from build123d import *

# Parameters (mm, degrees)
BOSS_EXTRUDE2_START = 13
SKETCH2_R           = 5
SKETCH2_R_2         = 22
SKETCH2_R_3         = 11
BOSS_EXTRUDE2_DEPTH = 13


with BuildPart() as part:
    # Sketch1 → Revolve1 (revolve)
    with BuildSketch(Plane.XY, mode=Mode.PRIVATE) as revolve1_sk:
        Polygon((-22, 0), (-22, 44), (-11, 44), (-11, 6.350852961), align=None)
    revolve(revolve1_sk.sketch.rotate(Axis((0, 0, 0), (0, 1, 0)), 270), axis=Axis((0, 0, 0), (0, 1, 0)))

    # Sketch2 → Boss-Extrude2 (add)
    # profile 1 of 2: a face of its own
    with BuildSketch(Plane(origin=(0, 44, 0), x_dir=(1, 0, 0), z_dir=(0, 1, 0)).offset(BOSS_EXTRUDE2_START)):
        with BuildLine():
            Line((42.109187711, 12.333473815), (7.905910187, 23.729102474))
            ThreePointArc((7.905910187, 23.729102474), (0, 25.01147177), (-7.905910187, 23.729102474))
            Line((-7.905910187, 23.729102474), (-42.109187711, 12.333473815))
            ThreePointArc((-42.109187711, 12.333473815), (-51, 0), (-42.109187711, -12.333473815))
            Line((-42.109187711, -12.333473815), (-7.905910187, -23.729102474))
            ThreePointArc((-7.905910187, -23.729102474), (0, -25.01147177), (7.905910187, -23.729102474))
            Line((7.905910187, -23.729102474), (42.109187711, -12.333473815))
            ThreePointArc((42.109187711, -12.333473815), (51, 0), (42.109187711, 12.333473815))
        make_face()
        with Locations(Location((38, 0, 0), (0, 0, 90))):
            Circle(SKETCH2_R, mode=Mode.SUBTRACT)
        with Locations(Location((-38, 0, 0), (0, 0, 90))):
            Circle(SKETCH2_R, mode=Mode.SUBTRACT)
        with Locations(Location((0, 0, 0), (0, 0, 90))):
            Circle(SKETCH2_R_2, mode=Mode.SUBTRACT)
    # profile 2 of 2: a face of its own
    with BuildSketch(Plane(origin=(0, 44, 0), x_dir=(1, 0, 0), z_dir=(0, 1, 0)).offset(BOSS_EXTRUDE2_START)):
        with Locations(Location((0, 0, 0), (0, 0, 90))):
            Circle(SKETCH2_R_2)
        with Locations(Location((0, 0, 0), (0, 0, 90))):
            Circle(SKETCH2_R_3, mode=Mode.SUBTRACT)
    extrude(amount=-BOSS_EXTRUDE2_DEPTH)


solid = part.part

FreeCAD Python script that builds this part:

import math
import FreeCAD as App
import Part
import Sketcher
from FreeCAD import Vector
Q = App.Units.Quantity

doc = App.newDocument("Part")
params = doc.addObject("Spreadsheet::Sheet", "Params")
for row, (alias, value) in enumerate([
    ("sketch1_width", "11 mm"),
    ("sketch1_height", "44 mm"),
    ("revolution_angle", "360 deg"),
    ("sketch2_diameter", "10 mm"),
    ("sketch2_diameter2", "22 mm"),
    ("sketch2_radius", "13 mm"),
    ("pad1_length", "13 mm"),
], start=1):
    params.set(f"A{row}", alias)
    params.set(f"B{row}", "=" + value)
    params.setAlias(f"B{row}", alias)

body = doc.addObject("PartDesign::Body", "Body")

sketch1 = body.newObject("Sketcher::SketchObject", "Sketch")
sketch1.AttachmentSupport = (doc.getObject("XY_Plane"), [""])
sketch1.MapMode = "FlatFace"
sketch1.addGeometry(Part.LineSegment(Vector(-22, 44, 0), Vector(-22, 0, 0)), False)
sketch1.addGeometry(Part.LineSegment(Vector(-22, 0, 0), Vector(-11, 6, 0)), False)
sketch1.addGeometry(Part.LineSegment(Vector(-11, 6, 0), Vector(-11, 44, 0)), False)
sketch1.addGeometry(Part.LineSegment(Vector(-11, 44, 0), Vector(-22, 44, 0)), False)
sketch1.addConstraint(Sketcher.Constraint("Coincident", 0, 2, 1, 1))
sketch1.addConstraint(Sketcher.Constraint("Coincident", 1, 2, 2, 1))
sketch1.addConstraint(Sketcher.Constraint("Coincident", 2, 2, 3, 1))
sketch1.addConstraint(Sketcher.Constraint("Coincident", 3, 2, 0, 1))
sketch1.addConstraint(Sketcher.Constraint("Vertical", 0))
sketch1.addConstraint(Sketcher.Constraint("Vertical", 2))
sketch1.addConstraint(Sketcher.Constraint("Horizontal", 3))
sketch1.addConstraint(Sketcher.Constraint("PointOnObject", 0, 2, -1))
sketch1.addConstraint(Sketcher.Constraint("DistanceX", 3, 2, 3, 1, 11.0))
sketch1.addConstraint(Sketcher.Constraint("DistanceY", 0, 2, 0, 1, 44.0))
sketch1.addConstraint(Sketcher.Constraint("Angle", 1, Q("30 deg")))
sketch1.addConstraint(Sketcher.Constraint("DistanceX", 0, 2, -1, 1, 22.0))
sketch1.setExpression("Constraints[8]", "Params.sketch1_width")
sketch1.setExpression("Constraints[9]", "Params.sketch1_height")
revolution = body.newObject("PartDesign::Revolution", "Revolution")
revolution.Profile = sketch1
revolution.ReferenceAxis = (sketch1, ["V_Axis"])
revolution.setExpression("Angle", "Params.revolution_angle")

sketch2 = body.newObject("Sketcher::SketchObject", "Sketch001")
sketch2.AttachmentSupport = (doc.getObject("XZ_Plane"), [""])
sketch2.MapMode = "FlatFace"
sketch2.AttachmentOffset = App.Placement(Vector(0, 0, -57), App.Rotation())
sketch2.addGeometry(Part.LineSegment(Vector(42, -12, 0), Vector(8, -24, 0)), False)
sketch2.addGeometry(Part.ArcOfCircle(Part.Circle(Vector(0, 0, 0), Vector(0, 0, 1), 25), math.radians(-108), math.radians(-72)), False)
sketch2.addGeometry(Part.LineSegment(Vector(-8, -24, 0), Vector(-42, -12, 0)), False)
sketch2.addGeometry(Part.ArcOfCircle(Part.Circle(Vector(-38, 0, 0), Vector(0, 0, 1), 13), math.radians(108), math.radians(252)), False)
sketch2.addGeometry(Part.LineSegment(Vector(-42, 12, 0), Vector(-8, 24, 0)), False)
sketch2.addGeometry(Part.ArcOfCircle(Part.Circle(Vector(0, 0, 0), Vector(0, 0, 1), 25), math.radians(72), math.radians(108)), False)
sketch2.addGeometry(Part.LineSegment(Vector(8, 24, 0), Vector(42, 12, 0)), False)
sketch2.addGeometry(Part.ArcOfCircle(Part.Circle(Vector(38, 0, 0), Vector(0, 0, 1), 13), math.radians(-72), math.radians(72)), False)
sketch2.addGeometry(Part.Circle(Vector(-38, 0, 0), Vector(0, 0, 1), 5), False)
sketch2.addGeometry(Part.Circle(Vector(38, 0, 0), Vector(0, 0, 1), 5), False)
sketch2.addGeometry(Part.Circle(Vector(0, 0, 0), Vector(0, 0, 1), 11), False)
sketch2.addConstraint(Sketcher.Constraint("Tangent", 0, 2, 1, 2))
sketch2.addConstraint(Sketcher.Constraint("Tangent", 1, 1, 2, 1))
sketch2.addConstraint(Sketcher.Constraint("Tangent", 2, 2, 3, 2))
sketch2.addConstraint(Sketcher.Constraint("Tangent", 3, 1, 4, 1))
sketch2.addConstraint(Sketcher.Constraint("Tangent", 4, 2, 5, 2))
sketch2.addConstraint(Sketcher.Constraint("Tangent", 5, 1, 6, 1))
sketch2.addConstraint(Sketcher.Constraint("Tangent", 6, 2, 7, 2))
sketch2.addConstraint(Sketcher.Constraint("Tangent", 7, 1, 0, 1))
sketch2.addConstraint(Sketcher.Constraint("Coincident", 1, 3, -1, 1))
sketch2.addConstraint(Sketcher.Constraint("Coincident", 5, 3, -1, 1))
sketch2.addConstraint(Sketcher.Constraint("Coincident", 10, 3, -1, 1))
sketch2.addConstraint(Sketcher.Constraint("Coincident", 8, 3, 3, 3))
sketch2.addConstraint(Sketcher.Constraint("Coincident", 9, 3, 7, 3))
sketch2.addConstraint(Sketcher.Constraint("Equal", 1, 5))
sketch2.addConstraint(Sketcher.Constraint("Equal", 3, 7))
sketch2.addConstraint(Sketcher.Constraint("Equal", 8, 9))
sketch2.addConstraint(Sketcher.Constraint("Symmetric", 3, 3, 7, 3, -1, 1))
sketch2.addConstraint(Sketcher.Constraint("PointOnObject", 3, 3, -1))
sketch2.addConstraint(Sketcher.Constraint("Diameter", 8, 10.0))
sketch2.addConstraint(Sketcher.Constraint("Diameter", 10, 22.0))
sketch2.addConstraint(Sketcher.Constraint("Radius", 3, 13.0))
sketch2.addConstraint(Sketcher.Constraint("DistanceX", 3, 3, -1, 1, 38.0))
sketch2.addConstraint(Sketcher.Constraint("Radius", 1, 25.011472))
sketch2.setExpression("Constraints[18]", "Params.sketch2_diameter")
sketch2.setExpression("Constraints[19]", "Params.sketch2_diameter2")
sketch2.setExpression("Constraints[20]", "Params.sketch2_radius")
pad1 = body.newObject("PartDesign::Pad", "Pad")
pad1.Profile = sketch2
pad1.setExpression("Length", "Params.pad1_length")

doc.recompute()
